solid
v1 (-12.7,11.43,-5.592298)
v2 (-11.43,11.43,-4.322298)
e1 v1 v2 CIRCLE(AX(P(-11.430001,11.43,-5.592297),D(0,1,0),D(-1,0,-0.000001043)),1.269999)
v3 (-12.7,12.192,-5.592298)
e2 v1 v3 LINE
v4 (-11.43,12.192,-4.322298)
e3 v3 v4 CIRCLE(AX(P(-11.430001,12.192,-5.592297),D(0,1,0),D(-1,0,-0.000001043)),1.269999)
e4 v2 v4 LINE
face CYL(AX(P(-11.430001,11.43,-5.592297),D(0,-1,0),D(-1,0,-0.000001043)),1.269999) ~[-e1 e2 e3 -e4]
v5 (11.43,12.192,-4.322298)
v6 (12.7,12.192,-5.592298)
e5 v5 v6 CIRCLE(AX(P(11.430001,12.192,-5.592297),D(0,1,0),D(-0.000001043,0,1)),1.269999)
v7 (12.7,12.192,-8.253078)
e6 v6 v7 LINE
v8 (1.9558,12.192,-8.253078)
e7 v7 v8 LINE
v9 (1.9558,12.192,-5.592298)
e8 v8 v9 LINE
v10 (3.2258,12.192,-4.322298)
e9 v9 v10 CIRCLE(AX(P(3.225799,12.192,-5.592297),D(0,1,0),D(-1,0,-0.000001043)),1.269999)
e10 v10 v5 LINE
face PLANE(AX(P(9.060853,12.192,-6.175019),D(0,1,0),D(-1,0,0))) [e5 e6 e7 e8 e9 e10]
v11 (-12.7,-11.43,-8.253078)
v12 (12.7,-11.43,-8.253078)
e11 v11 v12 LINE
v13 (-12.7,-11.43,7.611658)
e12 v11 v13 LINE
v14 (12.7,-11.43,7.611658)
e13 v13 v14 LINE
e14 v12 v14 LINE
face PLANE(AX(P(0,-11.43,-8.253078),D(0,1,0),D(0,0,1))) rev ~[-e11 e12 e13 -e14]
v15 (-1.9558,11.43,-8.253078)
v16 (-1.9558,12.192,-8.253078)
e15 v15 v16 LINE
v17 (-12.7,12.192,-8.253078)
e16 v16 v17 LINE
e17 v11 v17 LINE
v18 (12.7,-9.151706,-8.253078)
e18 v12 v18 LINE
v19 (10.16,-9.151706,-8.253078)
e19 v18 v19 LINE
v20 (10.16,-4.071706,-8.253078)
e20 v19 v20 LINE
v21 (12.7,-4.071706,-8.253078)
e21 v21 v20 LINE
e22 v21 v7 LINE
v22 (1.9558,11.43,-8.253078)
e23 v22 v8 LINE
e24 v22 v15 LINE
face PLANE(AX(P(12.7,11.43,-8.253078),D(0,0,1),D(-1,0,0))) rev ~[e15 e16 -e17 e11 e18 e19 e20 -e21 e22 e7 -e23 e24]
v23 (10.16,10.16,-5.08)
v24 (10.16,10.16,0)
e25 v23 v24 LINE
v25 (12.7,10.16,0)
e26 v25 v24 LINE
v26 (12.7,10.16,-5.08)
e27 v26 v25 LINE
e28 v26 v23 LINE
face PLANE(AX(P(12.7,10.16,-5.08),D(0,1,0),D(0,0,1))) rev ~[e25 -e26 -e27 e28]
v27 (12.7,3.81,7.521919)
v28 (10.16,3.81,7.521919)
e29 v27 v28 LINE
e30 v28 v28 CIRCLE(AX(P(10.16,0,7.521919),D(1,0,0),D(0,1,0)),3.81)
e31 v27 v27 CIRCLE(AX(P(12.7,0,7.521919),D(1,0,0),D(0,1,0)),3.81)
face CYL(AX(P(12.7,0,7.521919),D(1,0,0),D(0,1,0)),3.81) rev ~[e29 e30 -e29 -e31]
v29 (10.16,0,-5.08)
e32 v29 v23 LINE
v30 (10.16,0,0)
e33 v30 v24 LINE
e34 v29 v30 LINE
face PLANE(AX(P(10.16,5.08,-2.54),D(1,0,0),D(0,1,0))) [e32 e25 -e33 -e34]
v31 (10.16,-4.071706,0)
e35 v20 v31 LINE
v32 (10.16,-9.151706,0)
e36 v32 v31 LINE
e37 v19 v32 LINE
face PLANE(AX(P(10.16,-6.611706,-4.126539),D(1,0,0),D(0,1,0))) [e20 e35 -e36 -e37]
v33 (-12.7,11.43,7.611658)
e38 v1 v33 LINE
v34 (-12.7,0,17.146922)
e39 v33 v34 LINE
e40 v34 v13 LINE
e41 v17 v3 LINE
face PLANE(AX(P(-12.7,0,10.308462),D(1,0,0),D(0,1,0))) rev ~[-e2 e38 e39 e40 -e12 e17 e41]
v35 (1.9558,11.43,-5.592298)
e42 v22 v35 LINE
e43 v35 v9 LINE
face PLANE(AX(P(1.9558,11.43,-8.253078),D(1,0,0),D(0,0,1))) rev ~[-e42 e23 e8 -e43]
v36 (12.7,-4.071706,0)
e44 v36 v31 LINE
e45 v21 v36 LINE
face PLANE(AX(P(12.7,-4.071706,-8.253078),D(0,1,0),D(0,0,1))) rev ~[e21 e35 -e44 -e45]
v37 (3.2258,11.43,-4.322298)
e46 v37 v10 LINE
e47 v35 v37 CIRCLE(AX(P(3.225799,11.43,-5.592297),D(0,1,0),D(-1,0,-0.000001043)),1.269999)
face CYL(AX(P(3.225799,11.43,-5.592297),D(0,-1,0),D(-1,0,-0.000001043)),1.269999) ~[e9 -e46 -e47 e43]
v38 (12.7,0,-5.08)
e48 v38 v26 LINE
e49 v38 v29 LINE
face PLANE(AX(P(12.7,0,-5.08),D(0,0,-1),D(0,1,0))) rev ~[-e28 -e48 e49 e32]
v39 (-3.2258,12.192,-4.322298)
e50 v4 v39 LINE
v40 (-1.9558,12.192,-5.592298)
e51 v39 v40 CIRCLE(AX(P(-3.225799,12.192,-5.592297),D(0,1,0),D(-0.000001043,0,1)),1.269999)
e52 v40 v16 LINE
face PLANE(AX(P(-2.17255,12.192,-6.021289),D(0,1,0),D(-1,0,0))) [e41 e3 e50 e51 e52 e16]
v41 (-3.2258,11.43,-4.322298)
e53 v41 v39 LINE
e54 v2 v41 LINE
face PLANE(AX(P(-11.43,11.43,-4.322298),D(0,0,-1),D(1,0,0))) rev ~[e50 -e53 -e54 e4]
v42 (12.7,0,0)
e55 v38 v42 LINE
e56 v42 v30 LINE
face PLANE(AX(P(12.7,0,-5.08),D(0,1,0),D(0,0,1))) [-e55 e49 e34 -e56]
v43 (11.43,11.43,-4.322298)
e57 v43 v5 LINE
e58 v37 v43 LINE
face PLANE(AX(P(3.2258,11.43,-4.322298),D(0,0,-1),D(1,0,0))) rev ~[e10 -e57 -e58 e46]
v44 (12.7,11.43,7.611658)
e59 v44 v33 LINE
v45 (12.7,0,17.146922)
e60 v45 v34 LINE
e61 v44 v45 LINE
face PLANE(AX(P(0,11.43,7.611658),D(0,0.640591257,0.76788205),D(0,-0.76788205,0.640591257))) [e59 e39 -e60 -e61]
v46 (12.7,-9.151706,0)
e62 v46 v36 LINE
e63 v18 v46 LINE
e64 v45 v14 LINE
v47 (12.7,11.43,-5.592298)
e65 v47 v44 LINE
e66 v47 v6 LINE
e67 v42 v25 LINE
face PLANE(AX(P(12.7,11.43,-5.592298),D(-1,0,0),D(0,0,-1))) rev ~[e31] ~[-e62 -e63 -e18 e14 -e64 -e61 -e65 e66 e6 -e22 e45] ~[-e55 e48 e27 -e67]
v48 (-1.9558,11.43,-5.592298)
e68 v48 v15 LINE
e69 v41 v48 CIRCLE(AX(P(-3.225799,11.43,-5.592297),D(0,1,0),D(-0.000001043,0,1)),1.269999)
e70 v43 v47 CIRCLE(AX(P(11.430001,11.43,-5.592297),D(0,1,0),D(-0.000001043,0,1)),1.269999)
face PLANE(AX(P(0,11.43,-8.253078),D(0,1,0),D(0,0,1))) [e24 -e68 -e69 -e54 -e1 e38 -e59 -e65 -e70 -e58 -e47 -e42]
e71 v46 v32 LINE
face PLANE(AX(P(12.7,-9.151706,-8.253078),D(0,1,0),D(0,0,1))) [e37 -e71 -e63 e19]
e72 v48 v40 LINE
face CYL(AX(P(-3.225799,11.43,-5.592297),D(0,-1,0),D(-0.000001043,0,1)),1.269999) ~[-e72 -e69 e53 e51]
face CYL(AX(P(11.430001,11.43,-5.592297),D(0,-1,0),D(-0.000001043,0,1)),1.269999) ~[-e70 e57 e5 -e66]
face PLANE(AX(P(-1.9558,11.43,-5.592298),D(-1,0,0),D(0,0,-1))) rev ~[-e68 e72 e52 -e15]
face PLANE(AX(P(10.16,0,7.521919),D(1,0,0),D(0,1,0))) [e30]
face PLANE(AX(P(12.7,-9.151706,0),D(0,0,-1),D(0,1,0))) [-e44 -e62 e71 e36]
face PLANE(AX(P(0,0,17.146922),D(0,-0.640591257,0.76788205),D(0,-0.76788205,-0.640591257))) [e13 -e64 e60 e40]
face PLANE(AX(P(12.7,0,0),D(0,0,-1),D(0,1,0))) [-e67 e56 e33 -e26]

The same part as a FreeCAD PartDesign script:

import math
import FreeCAD as App
import Part
import Sketcher
Q = App.Units.Quantity

doc = App.newDocument("Part")
params = doc.addObject("Spreadsheet::Sheet", "Params")
for row, (alias, value) in enumerate([
    ("sketch1_width", "0.9 in"),
    ("pad1_length", "1 in"),
    ("sketch2_diameter", "0.3 in"),
    ("sketch2_width", "0.2 in"),
    ("sketch2_width2", "0.4 in"),
    ("pocket1_length", "0.1 in"),
    ("sketch3_radius", "0.0499999 in"),
    ("sketch3_width", "0.423 in"),
    ("pad2_length", "0.03 in"),
], start=1):
    params.set(f"A{row}", alias)
    params.set(f"B{row}", "=" + value)
    params.setAlias(f"B{row}", alias)

body = doc.addObject("PartDesign::Body", "Body")

sketch1 = doc.addObject("Sketcher::SketchObject", "Sketch")
body.addObject(sketch1)
sketch1.AttachmentSupport = (doc.YZ_Plane, [""])
sketch1.MapMode = "FlatFace"
sketch1.addGeometry([
    Part.LineSegment(App.Vector(0, 17, 0), App.Vector(-11, 8, 0)),
    Part.LineSegment(App.Vector(-11, 8, 0), App.Vector(-11, -8, 0)),
    Part.LineSegment(App.Vector(-11, -8, 0), App.Vector(11, -8, 0)),
    Part.LineSegment(App.Vector(11, -8, 0), App.Vector(11, 8, 0)),
    Part.LineSegment(App.Vector(11, 8, 0), App.Vector(0, 17, 0)),
], False)
sketch1.addConstraint([
    Sketcher.Constraint("Coincident", 0, 2, 1, 1),
    Sketcher.Constraint("Coincident", 1, 2, 2, 1),
    Sketcher.Constraint("Coincident", 2, 2, 3, 1),
    Sketcher.Constraint("Coincident", 3, 2, 4, 1),
    Sketcher.Constraint("Coincident", 4, 2, 0, 1),
    Sketcher.Constraint("Vertical", 1),
    Sketcher.Constraint("Horizontal", 2),
    Sketcher.Constraint("Vertical", 3),
    Sketcher.Constraint("Symmetric", 0, 2, 3, 2, -2),
    Sketcher.Constraint("PointOnObject", 4, 2, -2),
    Sketcher.Constraint("DistanceX", 2, 1, 2, 2, Q("0.9 in")),
    Sketcher.Constraint("DistanceY", 1, 2, 4, 2, Q("1 in")),
    Sketcher.Constraint("Distance", 0, Q("14.885099 mm")),
    Sketcher.Constraint("DistanceY", -1, 1, 0, 2, Q("7.611658 mm")),
])
sketch1.setExpression("Constraints[10]", "Params.sketch1_width")
pad1 = doc.addObject("PartDesign::Pad", "Pad")
body.addObject(pad1)
pad1.Profile = sketch1
pad1.setExpression("Length", "Params.pad1_length")
pad1.Midplane = True

sketch2 = doc.addObject("Sketcher::SketchObject", "Sketch001")
body.addObject(sketch2)
sketch2.AttachmentSupport = (doc.YZ_Plane, [""])
sketch2.MapMode = "FlatFace"
sketch2.AttachmentOffset = App.Placement(App.Vector(0, 0, 0.5 * 25.4), App.Rotation())
sketch2.addGeometry([
    Part.LineSegment(App.Vector(-9.2, 0, 0), App.Vector(-9.2, -8.3, 0)),
    Part.LineSegment(App.Vector(-9.2, -8.3, 0), App.Vector(-4.1, -8.3, 0)),
    Part.LineSegment(App.Vector(-4.1, -8.3, 0), App.Vector(-4.1, 0, 0)),
    Part.LineSegment(App.Vector(-4.1, 0, 0), App.Vector(-9.2, 0, 0)),
    Part.LineSegment(App.Vector(0, 0, 0), App.Vector(0, -5.1, 0)),
    Part.LineSegment(App.Vector(0, -5.1, 0), App.Vector(10.2, -5.1, 0)),
    Part.LineSegment(App.Vector(10.2, -5.1, 0), App.Vector(10.2, 0, 0)),
    Part.LineSegment(App.Vector(10.2, 0, 0), App.Vector(0, 0, 0)),
    Part.Circle(App.Vector(0, 7.5, 0), App.Vector(0, 0, 1), 3.8),
], False)
sketch2.addConstraint([
    Sketcher.Constraint("Coincident", 0, 2, 1, 1),
    Sketcher.Constraint("Coincident", 1, 2, 2, 1),
    Sketcher.Constraint("Coincident", 2, 2, 3, 1),
    Sketcher.Constraint("Coincident", 3, 2, 0, 1),
    Sketcher.Constraint("Coincident", 4, 2, 5, 1),
    Sketcher.Constraint("Coincident", 5, 2, 6, 1),
    Sketcher.Constraint("Coincident", 6, 2, 7, 1),
    Sketcher.Constraint("Coincident", 7, 2, 4, 1),
    Sketcher.Constraint("Vertical", 0),
    Sketcher.Constraint("Horizontal", 1),
    Sketcher.Constraint("Vertical", 2),
    Sketcher.Constraint("Horizontal", 3),
    Sketcher.Constraint("Vertical", 4),
    Sketcher.Constraint("Horizontal", 5),
    Sketcher.Constraint("Vertical", 6),
    Sketcher.Constraint("Horizontal", 7),
    Sketcher.Constraint("Coincident", 7, 2, -1, 1),
    Sketcher.Constraint("PointOnObject", 8, 3, -2),
    Sketcher.Constraint("PointOnObject", 2, 2, -1),
    Sketcher.Constraint("Equal", 3, 4),
    Sketcher.Constraint("Diameter", 8, Q("0.3 in")),
    Sketcher.Constraint("DistanceX", 1, 1, 1, 2, Q("0.2 in")),
    Sketcher.Constraint("DistanceX", 5, 1, 5, 2, Q("0.4 in")),
    Sketcher.Constraint("DistanceY", 0, 2, 0, 1, Q("8.253078 mm")),
    Sketcher.Constraint("DistanceY", -1, 1, 8, 3, Q("7.521919 mm")),
    Sketcher.Constraint("DistanceX", 0, 2, -1, 1, Q("9.151706 mm")),
])
sketch2.setExpression("Constraints[20]", "Params.sketch2_diameter")
sketch2.setExpression("Constraints[21]", "Params.sketch2_width")
sketch2.setExpression("Constraints[22]", "Params.sketch2_width2")
pocket1 = doc.addObject("PartDesign::Pocket", "Pocket")
body.addObject(pocket1)
pocket1.Profile = sketch2
pocket1.setExpression("Length", "Params.pocket1_length")

sketch3 = doc.addObject("Sketcher::SketchObject", "Sketch002")
body.addObject(sketch3)
sketch3.AttachmentSupport = (doc.XZ_Plane, [""])
sketch3.MapMode = "FlatFace"
sketch3.AttachmentOffset = App.Placement(App.Vector(0, 0, -0.45 * 25.4), App.Rotation())
sketch3.addGeometry([
    Part.ArcOfCircle(Part.Circle(App.Vector(11.4, -5.6, 0), App.Vector(0, 0, 1), 1.3), math.radians(0), math.radians(90)),
    Part.LineSegment(App.Vector(12.7, -5.6, 0), App.Vector(12.7, -8.3, 0)),
    Part.LineSegment(App.Vector(12.7, -8.3, 0), App.Vector(2, -8.3, 0)),
    Part.LineSegment(App.Vector(2, -8.3, 0), App.Vector(2, -5.6, 0)),
    Part.ArcOfCircle(Part.Circle(App.Vector(3.2, -5.6, 0), App.Vector(0, 0, 1), 1.3), math.radians(90), math.radians(180)),
    Part.LineSegment(App.Vector(3.2, -4.3, 0), App.Vector(11.4, -4.3, 0)),
    Part.ArcOfCircle(Part.Circle(App.Vector(-3.2, -5.6, 0), App.Vector(0, 0, 1), 1.3), math.radians(0), math.radians(90)),
    Part.LineSegment(App.Vector(-2, -5.6, 0), App.Vector(-2, -8.3, 0)),
    Part.LineSegment(App.Vector(-2, -8.3, 0), App.Vector(-12.7, -8.3, 0)),
    Part.LineSegment(App.Vector(-12.7, -8.3, 0), App.Vector(-12.7, -5.6, 0)),
    Part.ArcOfCircle(Part.Circle(App.Vector(-11.4, -5.6, 0), App.Vector(0, 0, 1), 1.3), math.radians(90), math.radians(180)),
    Part.LineSegment(App.Vector(-11.4, -4.3, 0), App.Vector(-3.2, -4.3, 0)),
], False)
sketch3.addConstraint([
    Sketcher.Constraint("Tangent", 0, 1, 1, 1),
    Sketcher.Constraint("Coincident", 1, 2, 2, 1),
    Sketcher.Constraint("Coincident", 2, 2, 3, 1),
    Sketcher.Constraint("Tangent", 3, 2, 4, 2),
    Sketcher.Constraint("Tangent", 4, 1, 5, 1),
    Sketcher.Constraint("Tangent", 5, 2, 0, 2),
    Sketcher.Constraint("Tangent", 6, 1, 7, 1),
    Sketcher.Constraint("Coincident", 7, 2, 8, 1),
    Sketcher.Constraint("Coincident", 8, 2, 9, 1),
    Sketcher.Constraint("Tangent", 9, 2, 10, 2),
    Sketcher.Constraint("Tangent", 10, 1, 11, 1),
    Sketcher.Constraint("Tangent", 11, 2, 6, 2),
    Sketcher.Constraint("Vertical", 1),
    Sketcher.Constraint("Horizontal", 2),
    Sketcher.Constraint("Vertical", 3),
    Sketcher.Constraint("Horizontal", 5),
    Sketcher.Constraint("Vertical", 7),
    Sketcher.Constraint("Horizontal", 8),
    Sketcher.Constraint("Vertical", 9),
    Sketcher.Constraint("Horizontal", 11),
    Sketcher.Constraint("Equal", 0, 4),
    Sketcher.Constraint("Equal", 4, 6),
    Sketcher.Constraint("Equal", 6, 10),
    Sketcher.Constraint("Symmetric", 4, 3, 6, 3, -2),
    Sketcher.Constraint("Symmetric", 1, 2, 8, 2, -2),
    Sketcher.Constraint("Radius", 0, Q("0.0499999 in")),
    Sketcher.Constraint("DistanceX", -1, 1, 0, 1, Q("0.5 in")),
    Sketcher.Constraint("DistanceX", 2, 2, 2, 1, Q("0.423 in")),
    Sketcher.Constraint("DistanceY", 1, 2, 1, 1, Q("2.66078 mm")),
    Sketcher.Constraint("DistanceY", 0, 1, -1, 1, Q("5.592298 mm")),
])
sketch3.setExpression("Constraints[25]", "Params.sketch3_radius")
sketch3.setExpression("Constraints[27]", "Params.sketch3_width")
pad2 = doc.addObject("PartDesign::Pad", "Pad001")
body.addObject(pad2)
pad2.Profile = sketch3
pad2.setExpression("Length", "Params.pad2_length")
pad2.Reversed = True

doc.recompute()
